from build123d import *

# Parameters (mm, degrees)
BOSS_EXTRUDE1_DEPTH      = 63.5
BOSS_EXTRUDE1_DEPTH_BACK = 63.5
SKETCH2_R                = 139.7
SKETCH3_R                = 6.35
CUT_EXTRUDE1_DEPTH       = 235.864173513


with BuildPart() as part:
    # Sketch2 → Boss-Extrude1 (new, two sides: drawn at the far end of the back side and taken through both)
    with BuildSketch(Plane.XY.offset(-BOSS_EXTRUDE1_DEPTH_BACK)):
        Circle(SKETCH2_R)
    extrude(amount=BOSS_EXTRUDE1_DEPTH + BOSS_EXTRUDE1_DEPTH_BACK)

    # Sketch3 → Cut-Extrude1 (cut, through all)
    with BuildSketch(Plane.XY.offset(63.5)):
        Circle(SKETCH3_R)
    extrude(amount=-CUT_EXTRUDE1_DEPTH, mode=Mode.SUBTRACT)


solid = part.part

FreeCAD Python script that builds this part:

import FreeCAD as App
import Part
import Sketcher
from FreeCAD import Vector
Q = App.Units.Quantity

doc = App.newDocument("Part")
body = doc.addObject("PartDesign::Body", "Body")

# Sketch on XY plane
sketch1 = doc.addObject("Sketcher::SketchObject", "Sketch")
body.addObject(sketch1)
sketch1.AttachmentSupport = (doc.XY_Plane, [""])
sketch1.MapMode = "FlatFace"
sketch1.addGeometry(Part.Circle(Vector(0, 0, 0), Vector(0, 0, 1), 140), False)
sketch1.addConstraint(Sketcher.Constraint("Coincident", 0, 3, -1, 1))
sketch1.addConstraint(Sketcher.Constraint("Diameter", 0, Q("11 in")))
pad1 = doc.addObject("PartDesign::Pad", "Pad")
body.addObject(pad1)
pad1.Profile = sketch1
pad1.Type = "TwoLengths"
pad1.Length = Q("2.5 in")
pad1.Length2 = Q("2.5 in")

# Sketch on XY plane
sketch2 = doc.addObject("Sketcher::SketchObject", "Sketch001")
body.addObject(sketch2)
sketch2.AttachmentSupport = (doc.XY_Plane, [""])
sketch2.MapMode = "FlatFace"
sketch2.AttachmentOffset = App.Placement(Vector(0, 0, 2.5 * 25.4), App.Rotation())
sketch2.addGeometry(Part.Circle(Vector(0, 0, 0), Vector(0, 0, 1), 6), False)
sketch2.addConstraint(Sketcher.Constraint("Coincident", 0, 3, -1, 1))
sketch2.addConstraint(Sketcher.Constraint("Diameter", 0, Q("0.5 in")))
pocket1 = doc.addObject("PartDesign::Pocket", "Pocket")
body.addObject(pocket1)
pocket1.Profile = sketch2
pocket1.Type = "ThroughAll"

doc.recompute()
